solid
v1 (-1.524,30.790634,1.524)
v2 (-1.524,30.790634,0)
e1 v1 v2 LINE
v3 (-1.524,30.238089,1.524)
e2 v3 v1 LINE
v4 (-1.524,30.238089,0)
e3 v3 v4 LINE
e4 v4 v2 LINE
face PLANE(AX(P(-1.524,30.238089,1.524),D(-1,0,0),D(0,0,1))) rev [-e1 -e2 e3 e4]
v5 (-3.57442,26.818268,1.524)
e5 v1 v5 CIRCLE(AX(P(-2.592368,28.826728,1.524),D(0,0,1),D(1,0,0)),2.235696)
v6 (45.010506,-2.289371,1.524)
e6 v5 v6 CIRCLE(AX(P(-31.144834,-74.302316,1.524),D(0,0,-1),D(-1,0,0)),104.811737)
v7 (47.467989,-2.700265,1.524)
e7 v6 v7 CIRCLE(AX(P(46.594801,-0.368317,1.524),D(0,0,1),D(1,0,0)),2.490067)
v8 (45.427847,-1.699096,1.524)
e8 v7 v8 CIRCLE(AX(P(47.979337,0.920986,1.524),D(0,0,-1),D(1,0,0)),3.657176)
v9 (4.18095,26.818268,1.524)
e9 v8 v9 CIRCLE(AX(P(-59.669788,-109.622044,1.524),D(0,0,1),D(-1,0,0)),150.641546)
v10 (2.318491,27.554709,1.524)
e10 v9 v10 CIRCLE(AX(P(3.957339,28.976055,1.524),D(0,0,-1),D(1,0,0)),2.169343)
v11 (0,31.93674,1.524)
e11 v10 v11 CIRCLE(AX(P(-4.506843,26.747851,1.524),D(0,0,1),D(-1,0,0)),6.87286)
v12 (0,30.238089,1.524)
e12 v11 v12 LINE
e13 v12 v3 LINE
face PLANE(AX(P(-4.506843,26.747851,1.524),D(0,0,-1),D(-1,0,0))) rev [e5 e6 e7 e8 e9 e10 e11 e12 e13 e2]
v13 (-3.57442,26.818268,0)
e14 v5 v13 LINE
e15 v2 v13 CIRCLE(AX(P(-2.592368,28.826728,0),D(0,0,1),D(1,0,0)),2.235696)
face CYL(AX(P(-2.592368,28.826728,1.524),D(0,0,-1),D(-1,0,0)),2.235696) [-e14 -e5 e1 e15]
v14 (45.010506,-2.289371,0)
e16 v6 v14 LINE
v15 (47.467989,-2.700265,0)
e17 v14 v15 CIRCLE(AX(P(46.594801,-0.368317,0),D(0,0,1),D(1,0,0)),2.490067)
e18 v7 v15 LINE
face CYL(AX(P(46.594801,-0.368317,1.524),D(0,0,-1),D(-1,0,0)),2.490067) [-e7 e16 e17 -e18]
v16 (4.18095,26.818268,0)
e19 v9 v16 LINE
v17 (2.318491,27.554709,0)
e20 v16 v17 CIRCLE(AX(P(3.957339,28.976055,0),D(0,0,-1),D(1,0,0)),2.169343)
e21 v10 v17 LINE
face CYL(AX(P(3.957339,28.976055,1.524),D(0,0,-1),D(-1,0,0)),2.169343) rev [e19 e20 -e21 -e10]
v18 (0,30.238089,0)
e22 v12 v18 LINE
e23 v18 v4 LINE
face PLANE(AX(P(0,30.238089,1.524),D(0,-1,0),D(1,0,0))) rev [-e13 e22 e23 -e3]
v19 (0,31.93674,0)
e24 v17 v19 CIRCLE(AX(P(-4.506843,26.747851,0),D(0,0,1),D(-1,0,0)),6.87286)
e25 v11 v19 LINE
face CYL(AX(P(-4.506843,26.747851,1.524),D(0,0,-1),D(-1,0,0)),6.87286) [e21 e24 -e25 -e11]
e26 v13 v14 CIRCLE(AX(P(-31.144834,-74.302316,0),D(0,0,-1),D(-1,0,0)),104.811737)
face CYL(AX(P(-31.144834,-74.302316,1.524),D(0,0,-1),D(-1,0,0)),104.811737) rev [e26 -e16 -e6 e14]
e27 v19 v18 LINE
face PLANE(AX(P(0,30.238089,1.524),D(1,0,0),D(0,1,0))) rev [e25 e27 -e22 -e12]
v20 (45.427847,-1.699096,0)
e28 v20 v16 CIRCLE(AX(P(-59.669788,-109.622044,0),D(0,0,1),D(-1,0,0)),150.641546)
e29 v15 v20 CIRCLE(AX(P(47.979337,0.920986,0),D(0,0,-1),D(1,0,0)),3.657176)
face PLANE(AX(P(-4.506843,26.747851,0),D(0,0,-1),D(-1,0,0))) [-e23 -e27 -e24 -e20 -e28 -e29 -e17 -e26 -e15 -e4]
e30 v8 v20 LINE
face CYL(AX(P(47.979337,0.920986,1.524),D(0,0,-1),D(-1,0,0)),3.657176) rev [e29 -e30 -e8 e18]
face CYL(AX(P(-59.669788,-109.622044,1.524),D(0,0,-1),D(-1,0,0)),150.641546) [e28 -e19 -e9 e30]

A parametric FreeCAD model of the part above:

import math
import FreeCAD as App
import Part
import Sketcher
Q = App.Units.Quantity

doc = App.newDocument("Part")
params = doc.addObject("Spreadsheet::Sheet", "Params")
for row, (alias, value) in enumerate([
    ("sketch1_width", "0.06 in"),
    ("pad1_length", "0.06 in"),
], start=1):
    params.set(f"A{row}", alias)
    params.set(f"B{row}", "=" + value)
    params.setAlias(f"B{row}", alias)

body = doc.addObject("PartDesign::Body", "Body")

# Sketch on XY plane
sketch1 = body.newObject("Sketcher::SketchObject", "Sketch")
sketch1.AttachmentSupport = (doc.getObject("XY_Plane"), [""])
sketch1.MapMode = "FlatFace"
sketch1.addGeometry(Part.LineSegment(App.Vector(0, 30.2, 0), App.Vector(-1.5, 30.2, 0)), False)
sketch1.addGeometry(Part.LineSegment(App.Vector(-1.5, 30.2, 0), App.Vector(-1.5, 30.8, 0)), False)
sketch1.addGeometry(Part.ArcOfCircle(Part.Circle(App.Vector(-2.6, 28.8, 0), App.Vector(0, 0, 1), 2.2), math.radians(61), math.radians(244)), False)
sketch1.addGeometry(Part.ArcOfCircle(Part.Circle(App.Vector(-31.1, -74.3, 0), App.Vector(0, 0, 1), 104.8), math.radians(43), math.radians(75)), False)
sketch1.addGeometry(Part.ArcOfCircle(Part.Circle(App.Vector(46.6, -0.4, 0), App.Vector(0, 0, 1), 2.5), math.radians(-130), math.radians(-69)), False)
sketch1.addGeometry(Part.ArcOfCircle(Part.Circle(App.Vector(48, 0.9, 0), App.Vector(0, 0, 1), 3.7), math.radians(-134), math.radians(-98)), False)
sketch1.addGeometry(Part.ArcOfCircle(Part.Circle(App.Vector(-59.7, -109.6, 0), App.Vector(0, 0, 1), 150.6), math.radians(45.76), math.radians(64.92)), False)
sketch1.addGeometry(Part.ArcOfCircle(Part.Circle(App.Vector(4, 29, 0), App.Vector(0, 0, 1), 2.2), math.radians(-139), math.radians(-84)), False)
sketch1.addGeometry(Part.ArcOfCircle(Part.Circle(App.Vector(-4.5, 26.7, 0), App.Vector(0, 0, 1), 6.9), math.radians(7), math.radians(49)), False)
sketch1.addGeometry(Part.LineSegment(App.Vector(0, 31.9, 0), App.Vector(0, 30.2, 0)), False)
sketch1.addConstraint(Sketcher.Constraint("Coincident", 0, 2, 1, 1))
sketch1.addConstraint(Sketcher.Constraint("Coincident", 1, 2, 2, 1))
sketch1.addConstraint(Sketcher.Constraint("Coincident", 2, 2, 3, 2))
sketch1.addConstraint(Sketcher.Constraint("Coincident", 3, 1, 4, 1))
sketch1.addConstraint(Sketcher.Constraint("Coincident", 4, 2, 5, 2))
sketch1.addConstraint(Sketcher.Constraint("Tangent", 5, 1, 6, 1))
sketch1.addConstraint(Sketcher.Constraint("Coincident", 6, 2, 7, 2))
sketch1.addConstraint(Sketcher.Constraint("Coincident", 7, 1, 8, 1))
sketch1.addConstraint(Sketcher.Constraint("Coincident", 8, 2, 9, 1))
sketch1.addConstraint(Sketcher.Constraint("Coincident", 9, 2, 0, 1))
sketch1.addConstraint(Sketcher.Constraint("Horizontal", 0))
sketch1.addConstraint(Sketcher.Constraint("Vertical", 1))
sketch1.addConstraint(Sketcher.Constraint("Vertical", 9))
sketch1.addConstraint(Sketcher.Constraint("PointOnObject", 8, 2, -2))
sketch1.addConstraint(Sketcher.Constraint("Horizontal", 2, 2, 6, 2))
sketch1.addConstraint(Sketcher.Constraint("DistanceX", 0, 2, 0, 1, Q("0.06 in")))
sketch1.addConstraint(Sketcher.Constraint("Radius", 8, 6.87286))
sketch1.addConstraint(Sketcher.Constraint("Radius", 2, 2.235696))
sketch1.addConstraint(Sketcher.Constraint("Radius", 3, 104.811737))
sketch1.addConstraint(Sketcher.Constraint("Radius", 4, 2.490067))
sketch1.addConstraint(Sketcher.Constraint("Radius", 5, 3.657176))
sketch1.addConstraint(Sketcher.Constraint("Radius", 6, 150.641546))
sketch1.addConstraint(Sketcher.Constraint("Radius", 7, 2.169343))
sketch1.addConstraint(Sketcher.Constraint("DistanceY", 9, 2, 9, 1, 1.698651))
sketch1.addConstraint(Sketcher.Constraint("DistanceX", -1, 1, 4, 3, 46.594801))
sketch1.addConstraint(Sketcher.Constraint("DistanceY", 3, 3, 4, 3, 73.933998))
sketch1.addConstraint(Sketcher.Constraint("DistanceY", 3, 3, 5, 3, 75.223302))
sketch1.addConstraint(Sketcher.Constraint("DistanceY", 6, 3, 7, 3, 138.598099))
sketch1.addConstraint(Sketcher.Constraint("DistanceY", 1, 1, 1, 2, 0.552545))
sketch1.addConstraint(Sketcher.Constraint("DistanceX", 2, 3, -1, 1, 2.592368))
sketch1.addConstraint(Sketcher.Constraint("DistanceX", 6, 3, -1, 1, 59.669788))
sketch1.addConstraint(Sketcher.Constraint("DistanceX", -1, 1, 7, 3, 3.957339))
sketch1.addConstraint(Sketcher.Constraint("DistanceY", -1, 1, 8, 3, 26.747851))
sketch1.addConstraint(Sketcher.Constraint("DistanceY", -1, 1, 0, 2, 30.238089))
sketch1.addConstraint(Sketcher.Constraint("DistanceX", 2, 2, -1, 1, 3.57442))
sketch1.addConstraint(Sketcher.Constraint("DistanceY", 3, 1, -1, 1, 2.289371))
sketch1.setExpression("Constraints[15]", "Params.sketch1_width")
pad1 = body.newObject("PartDesign::Pad", "Pad")
pad1.Profile = sketch1
pad1.setExpression("Length", "Params.pad1_length")

doc.recompute()
